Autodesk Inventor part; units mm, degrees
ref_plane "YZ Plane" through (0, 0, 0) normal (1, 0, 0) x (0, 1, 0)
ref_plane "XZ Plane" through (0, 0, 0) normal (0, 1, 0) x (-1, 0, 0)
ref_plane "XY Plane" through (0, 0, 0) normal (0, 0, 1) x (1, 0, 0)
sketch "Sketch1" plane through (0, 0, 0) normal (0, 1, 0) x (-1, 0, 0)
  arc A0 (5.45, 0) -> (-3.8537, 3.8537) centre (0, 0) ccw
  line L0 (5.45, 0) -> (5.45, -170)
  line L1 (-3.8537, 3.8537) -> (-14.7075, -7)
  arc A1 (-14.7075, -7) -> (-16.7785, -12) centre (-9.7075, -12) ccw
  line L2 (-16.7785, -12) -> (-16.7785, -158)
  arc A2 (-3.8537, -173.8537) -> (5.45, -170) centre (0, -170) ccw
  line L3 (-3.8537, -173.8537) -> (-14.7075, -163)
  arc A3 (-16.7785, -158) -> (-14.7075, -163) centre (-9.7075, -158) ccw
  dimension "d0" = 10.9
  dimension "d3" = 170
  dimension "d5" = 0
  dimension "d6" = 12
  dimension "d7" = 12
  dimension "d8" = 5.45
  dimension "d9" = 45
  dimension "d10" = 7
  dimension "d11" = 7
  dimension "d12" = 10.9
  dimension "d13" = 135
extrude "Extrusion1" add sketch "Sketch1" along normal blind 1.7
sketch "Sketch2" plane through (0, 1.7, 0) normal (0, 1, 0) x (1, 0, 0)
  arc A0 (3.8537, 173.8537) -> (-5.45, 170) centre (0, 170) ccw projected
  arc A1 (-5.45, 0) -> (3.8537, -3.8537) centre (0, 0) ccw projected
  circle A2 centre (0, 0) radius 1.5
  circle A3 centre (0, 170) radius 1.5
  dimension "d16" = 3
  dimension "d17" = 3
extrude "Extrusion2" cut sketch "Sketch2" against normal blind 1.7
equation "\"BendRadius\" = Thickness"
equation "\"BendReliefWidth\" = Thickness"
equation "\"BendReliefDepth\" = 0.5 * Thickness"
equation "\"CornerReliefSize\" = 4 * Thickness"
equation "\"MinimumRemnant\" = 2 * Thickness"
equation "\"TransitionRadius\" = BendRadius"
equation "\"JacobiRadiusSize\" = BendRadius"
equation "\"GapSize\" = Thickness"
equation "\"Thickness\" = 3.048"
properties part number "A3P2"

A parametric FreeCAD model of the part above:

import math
import FreeCAD as App
import Part
import Sketcher

doc = App.newDocument("Part")
body = doc.addObject("PartDesign::Body", "Body")

# Sketch on XZ plane
sketch1 = body.newObject("Sketcher::SketchObject", "Sketch")
sketch1.AttachmentSupport = (doc.getObject("XZ_Plane"), [""])
sketch1.MapMode = "FlatFace"
sketch1.addGeometry([
    Part.LineSegment(App.Vector(-5, -170, 0), App.Vector(-5, 0, 0)),  # 0
    Part.ArcOfCircle(Part.Circle(App.Vector(0, 0, 0), App.Vector(0, 0, 1), 5), math.radians(45), math.radians(180)),  # 1
    Part.LineSegment(App.Vector(4, 4, 0), App.Vector(15, -7, 0)),  # 2
    Part.ArcOfCircle(Part.Circle(App.Vector(10, -12, 0), App.Vector(0, 0, 1), 7), math.radians(0), math.radians(45)),  # 3
    Part.LineSegment(App.Vector(17, -12, 0), App.Vector(17, -158, 0)),  # 4
    Part.ArcOfCircle(Part.Circle(App.Vector(10, -158, 0), App.Vector(0, 0, 1), 7), math.radians(-45), math.radians(0)),  # 5
    Part.LineSegment(App.Vector(15, -163, 0), App.Vector(4, -174, 0)),  # 6
    Part.ArcOfCircle(Part.Circle(App.Vector(0, -170, 0), App.Vector(0, 0, 1), 5), math.radians(180), math.radians(315)),  # 7
], False)
sketch1.addConstraint([
    Sketcher.Constraint("Tangent", 0, 2, 1, 2),
    Sketcher.Constraint("Tangent", 1, 1, 2, 1),
    Sketcher.Constraint("Tangent", 2, 2, 3, 2),
    Sketcher.Constraint("Tangent", 3, 1, 4, 1),
    Sketcher.Constraint("Tangent", 4, 2, 5, 2),
    Sketcher.Constraint("Tangent", 5, 1, 6, 1),
    Sketcher.Constraint("Tangent", 6, 2, 7, 2),
    Sketcher.Constraint("Tangent", 7, 1, 0, 1),
    Sketcher.Constraint("Vertical", 0),
    Sketcher.Constraint("Vertical", 4),
    Sketcher.Constraint("Coincident", 1, 3, -1, 1),
    Sketcher.Constraint("Equal", 3, 5),
    Sketcher.Constraint("Equal", 1, 7),
    Sketcher.Constraint("Perpendicular", 2, 6),
    Sketcher.Constraint("Vertical", 2, 2, 5, 1),
    Sketcher.Constraint("DistanceY", 0, 1, 0, 2, 170.0),
    Sketcher.Constraint("Radius", 1, 5.45),
    Sketcher.Constraint("DistanceY", 3, 3, -1, 1, 12.0),
    Sketcher.Constraint("DistanceY", 2, 2, -1, 1, 7.0),
])
pad1 = body.newObject("PartDesign::Pad", "Pad")
pad1.Profile = sketch1
pad1.Length = 1.7
pad1.Reversed = True

# Sketch on XZ plane
sketch2 = body.newObject("Sketcher::SketchObject", "Sketch001")
sketch2.AttachmentSupport = (doc.getObject("XZ_Plane"), [""])
sketch2.MapMode = "FlatFace"
sketch2.AttachmentOffset = App.Placement(App.Vector(0, 0, -1.7), App.Rotation())
sketch2.addGeometry([
    Part.Circle(App.Vector(0, 0, 0), App.Vector(0, 0, 1), 1.5),
    Part.Circle(App.Vector(0, -170, 0), App.Vector(0, 0, 1), 1.5),
], False)
sketch2.addConstraint([
    Sketcher.Constraint("Coincident", 0, 3, -1, 1),
    Sketcher.Constraint("Equal", 0, 1),
    Sketcher.Constraint("PointOnObject", 1, 3, -2),
    Sketcher.Constraint("Diameter", 0, 3.0),
    Sketcher.Constraint("DistanceY", 1, 3, -1, 1, 170.0),
])
pocket1 = body.newObject("PartDesign::Pocket", "Pocket")
pocket1.Profile = sketch2
pocket1.Length = 1.7
pocket1.Reversed = True

doc.recompute()
